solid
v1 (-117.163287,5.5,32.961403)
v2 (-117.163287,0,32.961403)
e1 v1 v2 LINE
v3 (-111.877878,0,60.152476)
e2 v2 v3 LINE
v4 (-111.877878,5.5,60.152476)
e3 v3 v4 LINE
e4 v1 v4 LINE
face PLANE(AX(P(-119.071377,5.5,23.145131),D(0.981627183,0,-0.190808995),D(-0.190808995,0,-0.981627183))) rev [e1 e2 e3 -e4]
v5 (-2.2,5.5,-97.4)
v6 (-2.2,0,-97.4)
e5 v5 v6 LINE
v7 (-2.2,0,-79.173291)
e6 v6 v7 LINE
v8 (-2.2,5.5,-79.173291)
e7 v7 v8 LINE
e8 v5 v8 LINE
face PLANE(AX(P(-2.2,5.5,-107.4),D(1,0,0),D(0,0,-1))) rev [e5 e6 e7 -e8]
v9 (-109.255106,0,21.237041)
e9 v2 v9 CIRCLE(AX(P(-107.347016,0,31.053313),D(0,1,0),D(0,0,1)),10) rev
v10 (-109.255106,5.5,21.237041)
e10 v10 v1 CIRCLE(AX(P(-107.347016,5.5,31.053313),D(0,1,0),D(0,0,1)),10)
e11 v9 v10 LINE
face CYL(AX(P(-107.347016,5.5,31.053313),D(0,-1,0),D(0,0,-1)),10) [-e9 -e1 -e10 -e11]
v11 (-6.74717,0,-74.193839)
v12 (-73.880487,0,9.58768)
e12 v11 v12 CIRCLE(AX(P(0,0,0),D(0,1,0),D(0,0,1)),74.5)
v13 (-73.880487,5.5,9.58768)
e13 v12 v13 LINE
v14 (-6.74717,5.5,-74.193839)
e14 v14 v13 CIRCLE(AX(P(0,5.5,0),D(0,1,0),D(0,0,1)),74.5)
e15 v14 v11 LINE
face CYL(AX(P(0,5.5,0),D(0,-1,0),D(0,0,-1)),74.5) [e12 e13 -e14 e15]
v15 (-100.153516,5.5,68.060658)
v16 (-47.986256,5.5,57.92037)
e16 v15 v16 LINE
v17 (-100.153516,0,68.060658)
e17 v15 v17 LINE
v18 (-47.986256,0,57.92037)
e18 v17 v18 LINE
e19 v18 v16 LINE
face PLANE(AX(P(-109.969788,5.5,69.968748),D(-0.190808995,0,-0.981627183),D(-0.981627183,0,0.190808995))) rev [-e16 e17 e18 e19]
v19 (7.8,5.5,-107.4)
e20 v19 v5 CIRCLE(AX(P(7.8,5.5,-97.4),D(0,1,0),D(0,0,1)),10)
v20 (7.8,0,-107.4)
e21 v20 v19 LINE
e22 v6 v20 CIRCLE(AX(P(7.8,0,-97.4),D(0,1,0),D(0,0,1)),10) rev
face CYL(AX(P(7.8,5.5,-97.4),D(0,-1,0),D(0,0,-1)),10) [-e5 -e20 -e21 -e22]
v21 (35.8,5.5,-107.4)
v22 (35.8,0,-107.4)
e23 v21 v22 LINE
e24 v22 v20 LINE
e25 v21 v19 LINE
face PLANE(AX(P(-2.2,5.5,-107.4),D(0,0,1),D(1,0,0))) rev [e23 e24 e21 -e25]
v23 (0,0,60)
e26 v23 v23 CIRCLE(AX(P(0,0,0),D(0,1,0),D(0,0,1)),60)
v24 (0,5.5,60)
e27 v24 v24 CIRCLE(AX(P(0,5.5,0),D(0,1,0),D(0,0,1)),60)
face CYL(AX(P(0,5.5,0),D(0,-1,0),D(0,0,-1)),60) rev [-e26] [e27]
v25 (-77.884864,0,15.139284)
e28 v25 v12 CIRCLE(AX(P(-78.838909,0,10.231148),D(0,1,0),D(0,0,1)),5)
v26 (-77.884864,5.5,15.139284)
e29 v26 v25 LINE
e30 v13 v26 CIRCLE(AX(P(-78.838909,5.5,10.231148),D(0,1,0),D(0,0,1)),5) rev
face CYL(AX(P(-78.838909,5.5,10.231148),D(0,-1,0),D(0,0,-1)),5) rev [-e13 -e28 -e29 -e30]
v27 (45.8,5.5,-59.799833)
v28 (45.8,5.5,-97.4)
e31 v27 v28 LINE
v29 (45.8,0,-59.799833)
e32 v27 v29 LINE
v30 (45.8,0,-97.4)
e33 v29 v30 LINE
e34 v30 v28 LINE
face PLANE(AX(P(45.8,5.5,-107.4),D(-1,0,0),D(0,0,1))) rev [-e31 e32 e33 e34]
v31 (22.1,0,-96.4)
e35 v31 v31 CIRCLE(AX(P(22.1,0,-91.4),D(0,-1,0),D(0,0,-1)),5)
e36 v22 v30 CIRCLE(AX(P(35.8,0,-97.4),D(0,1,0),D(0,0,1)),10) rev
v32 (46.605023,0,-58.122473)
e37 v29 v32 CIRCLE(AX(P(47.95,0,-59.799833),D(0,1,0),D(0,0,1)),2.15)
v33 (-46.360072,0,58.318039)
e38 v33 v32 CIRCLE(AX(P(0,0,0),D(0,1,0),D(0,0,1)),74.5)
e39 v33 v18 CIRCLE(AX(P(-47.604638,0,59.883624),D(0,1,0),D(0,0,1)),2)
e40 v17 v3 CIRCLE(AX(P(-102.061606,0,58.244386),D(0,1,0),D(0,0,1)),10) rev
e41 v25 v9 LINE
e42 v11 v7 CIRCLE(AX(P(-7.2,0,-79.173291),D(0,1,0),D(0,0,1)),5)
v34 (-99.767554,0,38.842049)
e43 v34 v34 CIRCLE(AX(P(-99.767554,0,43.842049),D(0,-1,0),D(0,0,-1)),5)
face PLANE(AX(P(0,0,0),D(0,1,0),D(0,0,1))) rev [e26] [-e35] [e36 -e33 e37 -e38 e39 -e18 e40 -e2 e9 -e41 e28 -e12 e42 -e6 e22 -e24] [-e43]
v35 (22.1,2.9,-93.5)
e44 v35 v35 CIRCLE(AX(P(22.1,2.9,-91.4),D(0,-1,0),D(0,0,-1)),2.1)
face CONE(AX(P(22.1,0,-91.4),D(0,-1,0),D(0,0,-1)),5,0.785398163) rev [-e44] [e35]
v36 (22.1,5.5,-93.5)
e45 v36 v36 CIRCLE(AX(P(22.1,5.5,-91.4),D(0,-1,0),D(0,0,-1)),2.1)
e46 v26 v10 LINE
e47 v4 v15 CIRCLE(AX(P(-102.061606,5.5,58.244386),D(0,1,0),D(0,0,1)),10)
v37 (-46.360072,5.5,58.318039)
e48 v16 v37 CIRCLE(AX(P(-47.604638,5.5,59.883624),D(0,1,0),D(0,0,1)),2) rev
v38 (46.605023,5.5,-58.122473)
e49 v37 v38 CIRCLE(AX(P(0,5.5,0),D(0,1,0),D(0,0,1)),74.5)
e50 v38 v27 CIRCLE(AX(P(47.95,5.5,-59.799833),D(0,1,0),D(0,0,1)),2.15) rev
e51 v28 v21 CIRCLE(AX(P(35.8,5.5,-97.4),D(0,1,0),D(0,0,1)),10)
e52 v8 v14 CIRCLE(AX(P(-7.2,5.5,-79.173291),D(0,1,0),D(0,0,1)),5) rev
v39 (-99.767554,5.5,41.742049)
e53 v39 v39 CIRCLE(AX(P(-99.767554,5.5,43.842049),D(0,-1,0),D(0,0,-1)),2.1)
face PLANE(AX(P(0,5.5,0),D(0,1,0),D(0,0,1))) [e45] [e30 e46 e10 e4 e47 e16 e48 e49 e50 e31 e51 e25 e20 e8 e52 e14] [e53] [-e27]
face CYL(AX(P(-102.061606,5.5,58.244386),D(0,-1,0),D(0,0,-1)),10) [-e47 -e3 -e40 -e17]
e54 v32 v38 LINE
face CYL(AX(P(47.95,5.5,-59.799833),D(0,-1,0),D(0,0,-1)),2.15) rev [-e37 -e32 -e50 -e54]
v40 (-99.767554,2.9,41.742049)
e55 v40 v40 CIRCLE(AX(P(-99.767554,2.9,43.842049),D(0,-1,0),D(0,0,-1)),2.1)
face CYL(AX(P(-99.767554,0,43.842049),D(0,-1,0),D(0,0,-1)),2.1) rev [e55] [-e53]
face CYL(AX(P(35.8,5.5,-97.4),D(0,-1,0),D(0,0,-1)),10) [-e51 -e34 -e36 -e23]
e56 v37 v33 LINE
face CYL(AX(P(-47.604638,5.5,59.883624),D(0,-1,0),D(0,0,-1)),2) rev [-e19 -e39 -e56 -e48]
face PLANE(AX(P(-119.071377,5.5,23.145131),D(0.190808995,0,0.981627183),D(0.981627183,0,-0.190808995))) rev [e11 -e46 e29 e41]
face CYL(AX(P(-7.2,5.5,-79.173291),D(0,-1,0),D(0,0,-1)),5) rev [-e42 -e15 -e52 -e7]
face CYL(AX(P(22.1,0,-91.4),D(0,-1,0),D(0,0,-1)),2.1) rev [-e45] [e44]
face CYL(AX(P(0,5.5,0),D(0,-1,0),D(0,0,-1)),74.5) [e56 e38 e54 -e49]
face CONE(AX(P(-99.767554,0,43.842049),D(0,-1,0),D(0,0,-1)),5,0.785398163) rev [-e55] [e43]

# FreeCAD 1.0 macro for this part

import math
import FreeCAD as App
import Part
import Sketcher

V = App.Vector
Q = App.Units.Quantity


def edges_at(feature, points):
    """Names of the edges that pass closest to the given points."""
    edges = feature.Shape.Edges
    near = lambda p: min(range(len(edges)), key=lambda i: edges[i].distToShape(Part.Vertex(*p))[0])
    return sorted({f"Edge{near(p) + 1}" for p in points})

doc = App.newDocument("Part")
body = doc.addObject("PartDesign::Body", "Body")

sketch1 = body.newObject("Sketcher::SketchObject", "Sketch")
sketch1.AttachmentSupport = (doc.getObject("XZ_Plane"), [""])
sketch1.MapMode = "FlatFace"
sketch1.addGeometry([
    Part.LineSegment(V(-73.131225, 14.21527, 0), V(-119.071377, 23.145131, 0)),
    Part.LineSegment(V(-119.071377, 23.145131, 0), V(-109.969788, 69.968748, 0)),
    Part.LineSegment(V(-109.969788, 69.968748, 0), V(-47.074251, 57.743094, 0)),
    Part.ArcOfCircle(Part.Circle(V(0, 0, 0), V(0, 0, 1), 74.5), math.radians(-52.065146), math.radians(129.188159)),
    Part.LineSegment(V(45.8, -58.758914, 0), V(45.8, -107.4, 0)),
    Part.LineSegment(V(45.8, -107.4, 0), V(-2.2, -107.4, 0)),
    Part.LineSegment(V(-2.2, -107.4, 0), V(-2.2, -74.46751, 0)),
    Part.ArcOfCircle(Part.Circle(V(0, 0, 0), V(0, 0, 1), 74.5), math.radians(169), math.radians(268.307798)),
    Part.Circle(V(0, 0, 0), V(0, 0, 1), 60),
], False)
sketch1.addConstraint([
    Sketcher.Constraint("Coincident", 0, 2, 1, 1),
    Sketcher.Constraint("Coincident", 1, 2, 2, 1),
    Sketcher.Constraint("Coincident", 2, 2, 3, 2),
    Sketcher.Constraint("Coincident", 3, 1, 4, 1),
    Sketcher.Constraint("Coincident", 4, 2, 5, 1),
    Sketcher.Constraint("Coincident", 5, 2, 6, 1),
    Sketcher.Constraint("Coincident", 6, 2, 7, 2),
    Sketcher.Constraint("Coincident", 7, 1, 0, 1),
    Sketcher.Constraint("Vertical", 4),
    Sketcher.Constraint("Horizontal", 5),
    Sketcher.Constraint("Vertical", 6),
    Sketcher.Constraint("Coincident", 3, 3, -1, 1),
    Sketcher.Constraint("Coincident", 7, 3, -1, 1),
    Sketcher.Constraint("Coincident", 8, 3, -1, 1),
    Sketcher.Constraint("Equal", 3, 7),
    Sketcher.Constraint("Perpendicular", 0, 1),
    Sketcher.Constraint("Perpendicular", 1, 2),
    Sketcher.Constraint("Diameter", 8, Q("120 mm")),
    Sketcher.Constraint("Radius", 3, Q("74.5 mm")),
    Sketcher.Constraint("DistanceX", 5, 2, 5, 1, Q("48 mm")),
    Sketcher.Constraint("Angle", 0, Q("169 deg")),
    Sketcher.Constraint("Distance", 0, Q("46.8 mm")),
    Sketcher.Constraint("Distance", 1, Q("47.7 mm")),
    Sketcher.Constraint("DistanceX", -1, 1, 3, 1, Q("45.8 mm")),
    Sketcher.Constraint("DistanceY", 4, 2, -1, 1, Q("107.4 mm")),
    Sketcher.Constraint("DistanceY", -1, 1, 0, 2, Q("23.145131 mm")),
])
pad1 = body.newObject("PartDesign::Pad", "Pad")
pad1.Profile = sketch1
pad1.Length = 5.5
pad1.Reversed = True
doc.recompute()

fillet = body.newObject("PartDesign::Fillet", "Fillet")
fillet.Base = (pad1, edges_at(pad1, [(-47.074, 2.75, 57.743)]))
fillet.Radius = 2
doc.recompute()

fillet2 = body.newObject("PartDesign::Fillet", "Fillet001")
fillet2.Base = (fillet, edges_at(fillet, [
    (-119.071, 2.75, 23.145),
    (-2.2, 2.75, -107.4),
    (45.8, 2.75, -107.4),
    (-109.97, 2.75, 69.969),
]))
fillet2.Radius = 10
doc.recompute()

fillet3 = body.newObject("PartDesign::Fillet", "Fillet002")
fillet3.Base = (fillet2, edges_at(fillet2, [(-73.131, 2.75, 14.215), (-2.2, 2.75, -74.468)]))
fillet3.Radius = 5
doc.recompute()

fillet4 = body.newObject("PartDesign::Fillet", "Fillet003")
fillet4.Base = (fillet3, edges_at(fillet3, [(45.8, 2.75, -58.759)]))
fillet4.Radius = 2.15

sketch2 = body.newObject("Sketcher::SketchObject", "Sketch001")
sketch2.AttachmentSupport = (doc.getObject("XZ_Plane"), [""])
sketch2.MapMode = "FlatFace"
sketch2.addGeometry([
    Part.Circle(V(22.1, -91.4, 0), V(0, 0, 1), 2.1),
    Part.Circle(V(-99.767554, 43.842049, 0), V(0, 0, 1), 2.1),
], False)
sketch2.addConstraint([
    Sketcher.Constraint("Equal", 0, 1),
    Sketcher.Constraint("Diameter", 0, Q("4.2 mm")),
    Sketcher.Constraint("DistanceX", -1, 1, 0, 3, Q("22.1 mm")),
    Sketcher.Constraint("DistanceY", 0, 3, -1, 1, Q("91.4 mm")),
    Sketcher.Constraint("DistanceY", -1, 1, 1, 3, Q("43.842049 mm")),
    Sketcher.Constraint("DistanceX", 1, 3, -1, 1, Q("99.767554 mm")),
])
doc.recompute()
hole = body.newObject("PartDesign::Hole", "Hole")
hole.Profile = sketch2
hole.ThreadType = "None"
hole.Diameter = 4.2
hole.DepthType = "ThroughAll"
hole.HoleCutType = "Countersink"
hole.HoleCutDiameter = 10
hole.HoleCutCountersinkAngle = 90

doc.recompute()
